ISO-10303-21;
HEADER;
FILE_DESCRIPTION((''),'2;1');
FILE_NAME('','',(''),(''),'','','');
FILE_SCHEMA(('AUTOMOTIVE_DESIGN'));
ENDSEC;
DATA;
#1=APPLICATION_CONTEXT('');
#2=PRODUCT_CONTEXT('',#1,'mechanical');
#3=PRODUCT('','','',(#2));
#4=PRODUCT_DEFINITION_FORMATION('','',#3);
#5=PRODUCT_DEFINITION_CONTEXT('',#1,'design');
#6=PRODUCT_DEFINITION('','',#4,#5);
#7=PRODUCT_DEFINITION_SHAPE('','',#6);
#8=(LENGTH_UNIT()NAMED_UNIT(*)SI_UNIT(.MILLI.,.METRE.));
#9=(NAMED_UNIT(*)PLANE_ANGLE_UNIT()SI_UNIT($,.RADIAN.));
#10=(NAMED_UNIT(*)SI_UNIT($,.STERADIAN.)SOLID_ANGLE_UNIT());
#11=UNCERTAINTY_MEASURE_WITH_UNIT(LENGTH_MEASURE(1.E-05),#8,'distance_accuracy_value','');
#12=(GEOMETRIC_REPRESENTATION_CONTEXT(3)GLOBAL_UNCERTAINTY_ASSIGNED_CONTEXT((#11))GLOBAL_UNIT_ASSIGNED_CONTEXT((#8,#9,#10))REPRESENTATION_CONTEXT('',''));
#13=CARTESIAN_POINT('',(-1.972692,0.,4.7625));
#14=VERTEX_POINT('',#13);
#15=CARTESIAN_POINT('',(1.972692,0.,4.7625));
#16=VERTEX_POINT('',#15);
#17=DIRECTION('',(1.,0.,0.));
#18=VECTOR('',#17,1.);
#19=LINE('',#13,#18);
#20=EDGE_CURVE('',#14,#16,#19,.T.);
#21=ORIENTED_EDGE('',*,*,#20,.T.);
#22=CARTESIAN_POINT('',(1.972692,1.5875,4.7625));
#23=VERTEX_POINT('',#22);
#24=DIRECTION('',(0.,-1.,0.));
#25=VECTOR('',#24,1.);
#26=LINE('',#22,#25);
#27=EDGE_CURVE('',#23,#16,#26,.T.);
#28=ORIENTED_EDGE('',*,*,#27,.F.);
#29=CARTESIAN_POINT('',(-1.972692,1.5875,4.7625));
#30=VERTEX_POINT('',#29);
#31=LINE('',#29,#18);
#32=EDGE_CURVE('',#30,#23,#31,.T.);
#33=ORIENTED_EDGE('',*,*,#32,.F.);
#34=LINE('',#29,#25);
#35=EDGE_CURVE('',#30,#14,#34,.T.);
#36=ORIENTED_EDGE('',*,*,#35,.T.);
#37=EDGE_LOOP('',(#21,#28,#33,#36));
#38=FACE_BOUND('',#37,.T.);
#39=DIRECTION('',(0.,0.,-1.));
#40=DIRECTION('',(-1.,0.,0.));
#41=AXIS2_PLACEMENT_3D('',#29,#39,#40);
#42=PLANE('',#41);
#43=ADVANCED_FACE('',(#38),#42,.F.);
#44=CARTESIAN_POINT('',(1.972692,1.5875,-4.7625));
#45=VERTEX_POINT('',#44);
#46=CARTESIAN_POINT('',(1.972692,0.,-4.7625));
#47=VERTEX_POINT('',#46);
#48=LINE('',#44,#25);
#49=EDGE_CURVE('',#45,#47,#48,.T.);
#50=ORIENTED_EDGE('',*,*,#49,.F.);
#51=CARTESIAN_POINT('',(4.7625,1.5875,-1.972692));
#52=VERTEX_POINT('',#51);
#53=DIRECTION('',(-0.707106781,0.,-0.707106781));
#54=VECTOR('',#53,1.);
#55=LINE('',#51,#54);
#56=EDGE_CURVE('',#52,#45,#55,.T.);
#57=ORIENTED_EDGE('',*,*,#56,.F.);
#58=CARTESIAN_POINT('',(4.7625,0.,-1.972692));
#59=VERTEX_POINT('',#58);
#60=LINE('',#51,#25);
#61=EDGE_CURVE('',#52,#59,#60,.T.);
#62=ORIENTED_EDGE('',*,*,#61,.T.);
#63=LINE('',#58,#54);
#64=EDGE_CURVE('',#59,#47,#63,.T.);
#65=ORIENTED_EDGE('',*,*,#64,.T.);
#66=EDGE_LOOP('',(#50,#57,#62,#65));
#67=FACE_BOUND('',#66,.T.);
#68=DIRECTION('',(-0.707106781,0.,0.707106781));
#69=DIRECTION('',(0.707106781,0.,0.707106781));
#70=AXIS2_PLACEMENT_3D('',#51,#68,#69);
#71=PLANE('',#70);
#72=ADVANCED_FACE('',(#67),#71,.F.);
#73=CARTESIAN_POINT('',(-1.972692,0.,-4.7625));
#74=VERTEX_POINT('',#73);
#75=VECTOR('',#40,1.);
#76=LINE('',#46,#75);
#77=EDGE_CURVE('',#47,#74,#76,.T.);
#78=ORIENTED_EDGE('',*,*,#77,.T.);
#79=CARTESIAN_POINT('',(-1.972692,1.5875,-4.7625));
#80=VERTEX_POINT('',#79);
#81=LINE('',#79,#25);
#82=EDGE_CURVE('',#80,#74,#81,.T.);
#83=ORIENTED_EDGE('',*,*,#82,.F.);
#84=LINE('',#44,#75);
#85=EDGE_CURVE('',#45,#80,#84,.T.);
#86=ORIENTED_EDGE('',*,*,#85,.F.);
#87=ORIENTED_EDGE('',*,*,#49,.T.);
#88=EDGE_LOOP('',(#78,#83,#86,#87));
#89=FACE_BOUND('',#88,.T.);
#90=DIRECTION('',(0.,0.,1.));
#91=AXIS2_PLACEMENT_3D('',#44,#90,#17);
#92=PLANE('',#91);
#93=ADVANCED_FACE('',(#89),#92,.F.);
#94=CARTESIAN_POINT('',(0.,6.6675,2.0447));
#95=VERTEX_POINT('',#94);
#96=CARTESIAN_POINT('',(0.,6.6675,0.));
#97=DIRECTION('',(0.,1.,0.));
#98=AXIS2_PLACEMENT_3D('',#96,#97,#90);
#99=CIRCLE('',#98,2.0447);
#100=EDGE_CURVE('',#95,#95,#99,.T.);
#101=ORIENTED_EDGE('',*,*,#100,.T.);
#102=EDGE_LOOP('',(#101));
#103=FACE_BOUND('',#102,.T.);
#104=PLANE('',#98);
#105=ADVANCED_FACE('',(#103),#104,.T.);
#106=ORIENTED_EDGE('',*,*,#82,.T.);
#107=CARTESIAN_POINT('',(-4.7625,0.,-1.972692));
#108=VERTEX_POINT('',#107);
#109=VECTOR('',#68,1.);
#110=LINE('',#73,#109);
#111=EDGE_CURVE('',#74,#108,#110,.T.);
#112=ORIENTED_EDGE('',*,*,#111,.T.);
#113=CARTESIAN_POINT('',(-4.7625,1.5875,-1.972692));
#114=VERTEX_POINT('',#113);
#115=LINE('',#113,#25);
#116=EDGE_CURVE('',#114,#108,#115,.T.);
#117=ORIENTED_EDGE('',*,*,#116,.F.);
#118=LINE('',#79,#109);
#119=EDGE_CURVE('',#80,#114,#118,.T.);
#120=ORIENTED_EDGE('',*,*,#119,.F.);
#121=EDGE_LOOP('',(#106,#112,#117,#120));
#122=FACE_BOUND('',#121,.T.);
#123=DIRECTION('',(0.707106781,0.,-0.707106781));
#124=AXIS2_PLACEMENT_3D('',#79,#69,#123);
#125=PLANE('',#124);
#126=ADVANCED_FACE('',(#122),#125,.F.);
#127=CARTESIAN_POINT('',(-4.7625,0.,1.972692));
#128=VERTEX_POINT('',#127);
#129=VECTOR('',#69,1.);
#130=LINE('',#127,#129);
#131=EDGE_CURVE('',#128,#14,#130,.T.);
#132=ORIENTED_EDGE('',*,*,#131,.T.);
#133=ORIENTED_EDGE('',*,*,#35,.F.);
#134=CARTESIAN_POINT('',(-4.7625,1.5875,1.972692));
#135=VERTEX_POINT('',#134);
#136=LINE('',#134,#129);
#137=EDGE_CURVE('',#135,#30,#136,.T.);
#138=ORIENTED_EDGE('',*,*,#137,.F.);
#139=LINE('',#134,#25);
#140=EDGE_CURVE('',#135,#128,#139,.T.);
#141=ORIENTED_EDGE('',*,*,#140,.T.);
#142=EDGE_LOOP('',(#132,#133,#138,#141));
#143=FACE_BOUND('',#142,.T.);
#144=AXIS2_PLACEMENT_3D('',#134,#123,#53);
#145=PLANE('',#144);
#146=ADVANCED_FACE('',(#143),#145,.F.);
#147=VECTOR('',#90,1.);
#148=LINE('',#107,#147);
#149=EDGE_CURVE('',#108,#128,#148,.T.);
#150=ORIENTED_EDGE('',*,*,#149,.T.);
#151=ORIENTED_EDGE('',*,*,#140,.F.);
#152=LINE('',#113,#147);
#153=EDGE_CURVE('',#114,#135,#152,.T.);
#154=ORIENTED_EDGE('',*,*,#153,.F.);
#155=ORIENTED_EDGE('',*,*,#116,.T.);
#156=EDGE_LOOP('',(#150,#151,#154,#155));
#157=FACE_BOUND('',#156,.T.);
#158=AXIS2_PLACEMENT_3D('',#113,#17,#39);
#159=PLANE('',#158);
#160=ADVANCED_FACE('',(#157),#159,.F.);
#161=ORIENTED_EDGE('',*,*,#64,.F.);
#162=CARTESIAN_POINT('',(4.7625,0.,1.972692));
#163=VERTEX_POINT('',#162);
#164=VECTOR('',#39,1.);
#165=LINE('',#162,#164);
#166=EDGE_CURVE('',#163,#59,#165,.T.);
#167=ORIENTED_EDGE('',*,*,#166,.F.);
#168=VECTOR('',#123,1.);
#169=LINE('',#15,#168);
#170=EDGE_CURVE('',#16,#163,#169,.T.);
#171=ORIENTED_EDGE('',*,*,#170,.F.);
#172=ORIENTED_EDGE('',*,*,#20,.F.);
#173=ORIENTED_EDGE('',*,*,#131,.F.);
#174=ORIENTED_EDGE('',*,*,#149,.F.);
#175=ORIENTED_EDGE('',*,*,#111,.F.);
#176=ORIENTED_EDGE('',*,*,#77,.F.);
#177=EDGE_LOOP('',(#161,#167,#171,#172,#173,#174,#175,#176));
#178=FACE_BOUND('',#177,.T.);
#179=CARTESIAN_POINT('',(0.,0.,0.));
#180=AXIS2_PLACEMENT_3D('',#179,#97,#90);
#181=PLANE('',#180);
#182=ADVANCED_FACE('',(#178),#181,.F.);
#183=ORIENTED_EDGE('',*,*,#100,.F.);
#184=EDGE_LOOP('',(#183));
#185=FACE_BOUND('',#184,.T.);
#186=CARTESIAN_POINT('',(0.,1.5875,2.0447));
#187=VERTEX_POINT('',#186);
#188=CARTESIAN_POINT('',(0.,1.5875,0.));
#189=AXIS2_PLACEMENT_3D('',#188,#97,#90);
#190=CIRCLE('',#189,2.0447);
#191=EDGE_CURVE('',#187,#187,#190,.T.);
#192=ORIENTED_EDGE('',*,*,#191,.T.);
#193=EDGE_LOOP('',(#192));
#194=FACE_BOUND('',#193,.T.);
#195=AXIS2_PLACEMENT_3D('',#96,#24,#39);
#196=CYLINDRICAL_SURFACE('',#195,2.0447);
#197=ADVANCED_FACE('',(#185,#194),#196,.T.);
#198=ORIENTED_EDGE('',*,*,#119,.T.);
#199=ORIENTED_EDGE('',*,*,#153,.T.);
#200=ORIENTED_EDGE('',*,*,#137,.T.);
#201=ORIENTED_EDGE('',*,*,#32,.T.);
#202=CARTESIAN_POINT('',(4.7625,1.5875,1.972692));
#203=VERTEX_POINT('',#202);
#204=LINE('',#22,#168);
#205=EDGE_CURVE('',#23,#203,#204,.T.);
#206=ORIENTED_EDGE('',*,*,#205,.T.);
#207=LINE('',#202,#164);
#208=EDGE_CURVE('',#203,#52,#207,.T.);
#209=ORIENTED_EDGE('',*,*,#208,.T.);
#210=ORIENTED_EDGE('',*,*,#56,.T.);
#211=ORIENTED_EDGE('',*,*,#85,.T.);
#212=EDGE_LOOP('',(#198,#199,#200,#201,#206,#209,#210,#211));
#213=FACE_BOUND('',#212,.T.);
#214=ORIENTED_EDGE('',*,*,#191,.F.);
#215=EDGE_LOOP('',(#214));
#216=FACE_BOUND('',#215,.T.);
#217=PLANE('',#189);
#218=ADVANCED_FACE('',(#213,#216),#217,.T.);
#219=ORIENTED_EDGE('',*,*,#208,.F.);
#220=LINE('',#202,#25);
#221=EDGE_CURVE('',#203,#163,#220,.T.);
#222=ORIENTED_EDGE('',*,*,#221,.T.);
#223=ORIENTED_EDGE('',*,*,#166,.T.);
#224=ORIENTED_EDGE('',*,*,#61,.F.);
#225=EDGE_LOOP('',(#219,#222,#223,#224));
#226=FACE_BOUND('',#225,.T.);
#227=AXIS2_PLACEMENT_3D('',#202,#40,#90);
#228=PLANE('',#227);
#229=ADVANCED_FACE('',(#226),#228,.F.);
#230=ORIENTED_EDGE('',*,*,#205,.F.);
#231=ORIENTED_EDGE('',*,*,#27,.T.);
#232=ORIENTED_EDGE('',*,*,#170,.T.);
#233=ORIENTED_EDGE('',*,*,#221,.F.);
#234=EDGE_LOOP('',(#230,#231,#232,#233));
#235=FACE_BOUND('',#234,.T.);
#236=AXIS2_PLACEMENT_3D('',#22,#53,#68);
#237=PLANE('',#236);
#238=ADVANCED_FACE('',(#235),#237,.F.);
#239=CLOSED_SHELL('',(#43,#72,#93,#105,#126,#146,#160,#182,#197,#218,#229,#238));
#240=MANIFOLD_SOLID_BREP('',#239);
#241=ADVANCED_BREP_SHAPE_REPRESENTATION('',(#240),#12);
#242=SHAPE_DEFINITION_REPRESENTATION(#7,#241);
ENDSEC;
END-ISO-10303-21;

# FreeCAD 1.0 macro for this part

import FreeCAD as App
import Part
import Sketcher
from FreeCAD import Vector
Q = App.Units.Quantity

doc = App.newDocument("Part")
body = doc.addObject("PartDesign::Body", "Body")

sketch1 = body.newObject("Sketcher::SketchObject", "Sketch")
sketch1.AttachmentSupport = (doc.getObject("XZ_Plane"), [""])
sketch1.MapMode = "FlatFace"
sketch1.addGeometry(Part.LineSegment(Vector(4.8, 2, 0), Vector(4.8, -2, 0)), False)
sketch1.addGeometry(Part.LineSegment(Vector(4.8, -2, 0), Vector(2, -4.8, 0)), False)
sketch1.addGeometry(Part.LineSegment(Vector(2, -4.8, 0), Vector(-2, -4.8, 0)), False)
sketch1.addGeometry(Part.LineSegment(Vector(-2, -4.8, 0), Vector(-4.8, -2, 0)), False)
sketch1.addGeometry(Part.LineSegment(Vector(-4.8, -2, 0), Vector(-4.8, 2, 0)), False)
sketch1.addGeometry(Part.LineSegment(Vector(-4.8, 2, 0), Vector(-2, 4.8, 0)), False)
sketch1.addGeometry(Part.LineSegment(Vector(-2, 4.8, 0), Vector(2, 4.8, 0)), False)
sketch1.addGeometry(Part.LineSegment(Vector(2, 4.8, 0), Vector(4.8, 2, 0)), False)
sketch1.addConstraint(Sketcher.Constraint("Coincident", 0, 2, 1, 1))
sketch1.addConstraint(Sketcher.Constraint("Coincident", 1, 2, 2, 1))
sketch1.addConstraint(Sketcher.Constraint("Coincident", 2, 2, 3, 1))
sketch1.addConstraint(Sketcher.Constraint("Coincident", 3, 2, 4, 1))
sketch1.addConstraint(Sketcher.Constraint("Coincident", 4, 2, 5, 1))
sketch1.addConstraint(Sketcher.Constraint("Coincident", 5, 2, 6, 1))
sketch1.addConstraint(Sketcher.Constraint("Coincident", 6, 2, 7, 1))
sketch1.addConstraint(Sketcher.Constraint("Coincident", 7, 2, 0, 1))
sketch1.addConstraint(Sketcher.Constraint("Vertical", 0))
sketch1.addConstraint(Sketcher.Constraint("Horizontal", 2))
sketch1.addConstraint(Sketcher.Constraint("Vertical", 4))
sketch1.addConstraint(Sketcher.Constraint("Horizontal", 6))
sketch1.addConstraint(Sketcher.Constraint("Symmetric", 0, 2, 4, 2, -1, 1))
sketch1.addConstraint(Sketcher.Constraint("Symmetric", 1, 2, 5, 2, -1, 1))
sketch1.addConstraint(Sketcher.Constraint("Perpendicular", 1, 3))
sketch1.addConstraint(Sketcher.Constraint("Perpendicular", 5, 7))
sketch1.addConstraint(Sketcher.Constraint("Horizontal", 0, 2, 3, 2))
sketch1.addConstraint(Sketcher.Constraint("Horizontal", 4, 2, 7, 2))
sketch1.addConstraint(Sketcher.Constraint("Vertical", 2, 2, 5, 2))
sketch1.addConstraint(Sketcher.Constraint("Equal", 6, 0))
sketch1.addConstraint(Sketcher.Constraint("DistanceX", -1, 1, 0, 2, Q("0.1875 in")))
sketch1.addConstraint(Sketcher.Constraint("DistanceX", 2, 2, 2, 1, Q("3.945384 mm")))
pad1 = body.newObject("PartDesign::Pad", "Pad")
pad1.Profile = sketch1
pad1.Length = Q("0.0625 in")
pad1.Reversed = True

sketch2 = body.newObject("Sketcher::SketchObject", "Sketch001")
sketch2.AttachmentSupport = (doc.getObject("XZ_Plane"), [""])
sketch2.MapMode = "FlatFace"
sketch2.AttachmentOffset = App.Placement(Vector(0, 0, -0.0625 * 25.4), App.Rotation())
sketch2.addGeometry(Part.Circle(Vector(0, 0, 0), Vector(0, 0, 1), 2), False)
sketch2.addConstraint(Sketcher.Constraint("Coincident", 0, 3, -1, 1))
sketch2.addConstraint(Sketcher.Constraint("Diameter", 0, Q("0.161 in")))
pad2 = body.newObject("PartDesign::Pad", "Pad001")
pad2.Profile = sketch2
pad2.Length = Q("0.2 in")
pad2.Reversed = True

doc.recompute()
